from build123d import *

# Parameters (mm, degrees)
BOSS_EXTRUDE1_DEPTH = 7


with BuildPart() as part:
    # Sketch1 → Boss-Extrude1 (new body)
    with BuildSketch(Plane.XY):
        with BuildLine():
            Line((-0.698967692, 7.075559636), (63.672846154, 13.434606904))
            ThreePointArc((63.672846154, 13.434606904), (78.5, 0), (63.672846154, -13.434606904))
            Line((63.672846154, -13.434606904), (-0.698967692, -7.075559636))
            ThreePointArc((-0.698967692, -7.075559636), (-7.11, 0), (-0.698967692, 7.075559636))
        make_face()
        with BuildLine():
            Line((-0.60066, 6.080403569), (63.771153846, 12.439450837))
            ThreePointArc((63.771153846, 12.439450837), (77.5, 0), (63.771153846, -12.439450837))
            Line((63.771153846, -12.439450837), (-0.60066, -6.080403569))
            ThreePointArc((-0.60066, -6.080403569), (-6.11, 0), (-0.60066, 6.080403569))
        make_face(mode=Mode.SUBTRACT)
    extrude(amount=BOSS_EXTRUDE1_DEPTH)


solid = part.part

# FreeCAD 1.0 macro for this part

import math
import FreeCAD as App
import Part
import Sketcher

V = App.Vector

doc = App.newDocument("Part")
body = doc.addObject("PartDesign::Body", "Body")

# Sketch on XY plane
sketch1 = body.newObject("Sketcher::SketchObject", "Sketch")
sketch1.AttachmentSupport = (doc.getObject("XY_Plane"), [""])
sketch1.MapMode = "FlatFace"
sketch1.addGeometry([
    Part.LineSegment(V(63.672846, 13.434607, 0), V(-0.698968, 7.07556, 0)),  # 0
    Part.ArcOfCircle(Part.Circle(V(0, 0, 0), V(0, 0, 1), 7.11), math.radians(95.641728), math.radians(264.358272)),  # 1
    Part.LineSegment(V(-0.698968, -7.07556, 0), V(63.672846, -13.434607, 0)),  # 2
    Part.ArcOfCircle(Part.Circle(V(65, 0, 0), V(0, 0, 1), 13.5), math.radians(-95.641728), math.radians(95.641728)),  # 3
    Part.LineSegment(V(-0.60066, 6.080404, 0), V(63.771154, 12.439451, 0)),  # 4
    Part.ArcOfCircle(Part.Circle(V(65, 0, 0), V(0, 0, 1), 12.5), math.radians(-95.641728), math.radians(95.641728)),  # 5
    Part.LineSegment(V(63.771154, -12.439451, 0), V(-0.60066, -6.080404, 0)),  # 6
    Part.ArcOfCircle(Part.Circle(V(0, 0, 0), V(0, 0, 1), 6.11), math.radians(95.641728), math.radians(264.358272)),  # 7
], False)
sketch1.addConstraint([
    Sketcher.Constraint("Tangent", 0, 2, 1, 1),
    Sketcher.Constraint("Tangent", 1, 2, 2, 1),
    Sketcher.Constraint("Tangent", 2, 2, 3, 1),
    Sketcher.Constraint("Tangent", 3, 2, 0, 1),
    Sketcher.Constraint("Tangent", 4, 2, 5, 2),
    Sketcher.Constraint("Tangent", 5, 1, 6, 1),
    Sketcher.Constraint("Tangent", 6, 2, 7, 2),
    Sketcher.Constraint("Tangent", 7, 1, 4, 1),
    Sketcher.Constraint("Coincident", 1, 3, -1, 1),
    Sketcher.Constraint("Coincident", 7, 3, -1, 1),
    Sketcher.Constraint("Coincident", 5, 3, 3, 3),
    Sketcher.Constraint("PointOnObject", 3, 3, -1),
    Sketcher.Constraint("Parallel", 0, 4),
    Sketcher.Constraint("Radius", 3, 13.5),
    Sketcher.Constraint("Radius", 5, 12.5),
    Sketcher.Constraint("Radius", 1, 7.11),
    Sketcher.Constraint("DistanceX", -1, 1, 3, 3, 65.0),
])
pad1 = body.newObject("PartDesign::Pad", "Pad")
pad1.Profile = sketch1
pad1.Length = 7

doc.recompute()
